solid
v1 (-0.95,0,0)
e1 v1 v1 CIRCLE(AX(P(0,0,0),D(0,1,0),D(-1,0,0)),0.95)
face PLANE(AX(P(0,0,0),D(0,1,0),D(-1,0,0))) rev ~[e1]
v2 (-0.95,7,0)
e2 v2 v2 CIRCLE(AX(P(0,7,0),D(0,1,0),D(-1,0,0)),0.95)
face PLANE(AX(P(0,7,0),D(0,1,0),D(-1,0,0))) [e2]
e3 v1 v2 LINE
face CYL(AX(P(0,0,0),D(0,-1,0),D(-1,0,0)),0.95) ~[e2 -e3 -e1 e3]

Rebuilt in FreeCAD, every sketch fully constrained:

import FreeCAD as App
import Part
import Sketcher

V = App.Vector

doc = App.newDocument("Part")
body = doc.addObject("PartDesign::Body", "Body")

# Sketch on XZ plane
sketch1 = body.newObject("Sketcher::SketchObject", "Sketch")
sketch1.AttachmentSupport = (doc.getObject("XZ_Plane"), [""])
sketch1.MapMode = "FlatFace"
sketch1.addGeometry(Part.Circle(V(0, 0, 0), V(0, 0, 1), 0.9), False)
sketch1.addConstraint([
    Sketcher.Constraint("Coincident", 0, 3, -1, 1),
    Sketcher.Constraint("Diameter", 0, 1.9),
])
pad1 = body.newObject("PartDesign::Pad", "Pad")
pad1.Profile = sketch1
pad1.Length = 7
pad1.Reversed = True

doc.recompute()
